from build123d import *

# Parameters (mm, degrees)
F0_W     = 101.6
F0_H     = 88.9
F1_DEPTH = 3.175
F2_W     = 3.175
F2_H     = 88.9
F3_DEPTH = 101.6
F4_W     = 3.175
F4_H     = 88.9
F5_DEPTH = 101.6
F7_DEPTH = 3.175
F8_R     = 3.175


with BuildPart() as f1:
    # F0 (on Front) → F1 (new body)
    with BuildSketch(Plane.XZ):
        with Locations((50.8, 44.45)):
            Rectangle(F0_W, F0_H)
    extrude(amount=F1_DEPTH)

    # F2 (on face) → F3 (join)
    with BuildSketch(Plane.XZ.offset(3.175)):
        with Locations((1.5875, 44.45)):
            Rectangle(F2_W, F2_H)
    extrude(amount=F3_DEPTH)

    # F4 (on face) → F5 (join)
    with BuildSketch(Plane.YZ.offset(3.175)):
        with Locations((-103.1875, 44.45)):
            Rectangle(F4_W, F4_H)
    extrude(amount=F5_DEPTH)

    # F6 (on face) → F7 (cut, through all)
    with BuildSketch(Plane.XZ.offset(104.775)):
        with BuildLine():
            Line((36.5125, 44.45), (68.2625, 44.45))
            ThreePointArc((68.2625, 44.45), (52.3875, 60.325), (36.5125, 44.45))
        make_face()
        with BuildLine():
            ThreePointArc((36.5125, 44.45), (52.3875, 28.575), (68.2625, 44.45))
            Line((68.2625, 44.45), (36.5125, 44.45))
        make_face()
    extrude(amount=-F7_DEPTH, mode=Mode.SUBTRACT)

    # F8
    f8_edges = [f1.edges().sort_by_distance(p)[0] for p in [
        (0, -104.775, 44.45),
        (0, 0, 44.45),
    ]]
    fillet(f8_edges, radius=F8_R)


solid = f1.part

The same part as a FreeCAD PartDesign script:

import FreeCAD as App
import Part
import Sketcher

V = App.Vector
Q = App.Units.Quantity


def edges_at(feature, points):
    """Names of the edges that pass closest to the given points."""
    edges = feature.Shape.Edges
    near = lambda p: min(range(len(edges)), key=lambda i: edges[i].distToShape(Part.Vertex(*p))[0])
    return sorted({f"Edge{near(p) + 1}" for p in points})

doc = App.newDocument("Part")
body = doc.addObject("PartDesign::Body", "Body")

# Sketch on XZ plane
sketch1 = body.newObject("Sketcher::SketchObject", "Sketch")
sketch1.AttachmentSupport = (doc.getObject("XZ_Plane"), [""])
sketch1.MapMode = "FlatFace"
sketch1.addGeometry(Part.LineSegment(V(0, 89, 0), V(0, 0, 0)), False)
sketch1.addGeometry(Part.LineSegment(V(0, 0, 0), V(102, 0, 0)), False)
sketch1.addGeometry(Part.LineSegment(V(102, 0, 0), V(102, 89, 0)), False)
sketch1.addGeometry(Part.LineSegment(V(102, 89, 0), V(0, 89, 0)), False)
sketch1.addConstraint(Sketcher.Constraint("Coincident", 0, 2, 1, 1))
sketch1.addConstraint(Sketcher.Constraint("Coincident", 1, 2, 2, 1))
sketch1.addConstraint(Sketcher.Constraint("Coincident", 2, 2, 3, 1))
sketch1.addConstraint(Sketcher.Constraint("Coincident", 3, 2, 0, 1))
sketch1.addConstraint(Sketcher.Constraint("Vertical", 0))
sketch1.addConstraint(Sketcher.Constraint("Horizontal", 1))
sketch1.addConstraint(Sketcher.Constraint("Vertical", 2))
sketch1.addConstraint(Sketcher.Constraint("Horizontal", 3))
sketch1.addConstraint(Sketcher.Constraint("Coincident", 0, 2, -1, 1))
sketch1.addConstraint(Sketcher.Constraint("DistanceX", 1, 1, 1, 2, Q("4 in")))
sketch1.addConstraint(Sketcher.Constraint("DistanceY", 0, 2, 0, 1, Q("3.5 in")))
pad1 = body.newObject("PartDesign::Pad", "Pad")
pad1.Profile = sketch1
pad1.Length = Q("0.125 in")

# Sketch on XZ plane
sketch2 = body.newObject("Sketcher::SketchObject", "Sketch001")
sketch2.AttachmentSupport = (doc.getObject("XZ_Plane"), [""])
sketch2.MapMode = "FlatFace"
sketch2.AttachmentOffset = App.Placement(V(0, 0, 0.125 * 25.4), App.Rotation())
sketch2.addGeometry(Part.LineSegment(V(0, 88.9, 0), V(0, 0, 0)), False)
sketch2.addGeometry(Part.LineSegment(V(0, 0, 0), V(3.2, 0, 0)), False)
sketch2.addGeometry(Part.LineSegment(V(3.2, 0, 0), V(3.2, 88.9, 0)), False)
sketch2.addGeometry(Part.LineSegment(V(3.2, 88.9, 0), V(0, 88.9, 0)), False)
sketch2.addConstraint(Sketcher.Constraint("Coincident", 0, 2, 1, 1))
sketch2.addConstraint(Sketcher.Constraint("Coincident", 1, 2, 2, 1))
sketch2.addConstraint(Sketcher.Constraint("Coincident", 2, 2, 3, 1))
sketch2.addConstraint(Sketcher.Constraint("Coincident", 3, 2, 0, 1))
sketch2.addConstraint(Sketcher.Constraint("Vertical", 0))
sketch2.addConstraint(Sketcher.Constraint("Horizontal", 1))
sketch2.addConstraint(Sketcher.Constraint("Vertical", 2))
sketch2.addConstraint(Sketcher.Constraint("Horizontal", 3))
sketch2.addConstraint(Sketcher.Constraint("Coincident", 0, 2, -1, 1))
sketch2.addConstraint(Sketcher.Constraint("DistanceY", 0, 2, 0, 1, Q("3.5 in")))
sketch2.addConstraint(Sketcher.Constraint("DistanceX", 1, 1, 1, 2, Q("0.125 in")))
pad2 = body.newObject("PartDesign::Pad", "Pad001")
pad2.Profile = sketch2
pad2.Length = Q("4 in")

# Sketch on YZ plane
sketch3 = body.newObject("Sketcher::SketchObject", "Sketch002")
sketch3.AttachmentSupport = (doc.getObject("YZ_Plane"), [""])
sketch3.MapMode = "FlatFace"
sketch3.AttachmentOffset = App.Placement(V(0, 0, 0.125 * 25.4), App.Rotation())
sketch3.addGeometry(Part.LineSegment(V(-104.8, 88.9, 0), V(-104.8, 0, 0)), False)
sketch3.addGeometry(Part.LineSegment(V(-104.8, 0, 0), V(-101.6, 0, 0)), False)
sketch3.addGeometry(Part.LineSegment(V(-101.6, 0, 0), V(-101.6, 88.9, 0)), False)
sketch3.addGeometry(Part.LineSegment(V(-101.6, 88.9, 0), V(-104.8, 88.9, 0)), False)
sketch3.addConstraint(Sketcher.Constraint("Coincident", 0, 2, 1, 1))
sketch3.addConstraint(Sketcher.Constraint("Coincident", 1, 2, 2, 1))
sketch3.addConstraint(Sketcher.Constraint("Coincident", 2, 2, 3, 1))
sketch3.addConstraint(Sketcher.Constraint("Coincident", 3, 2, 0, 1))
sketch3.addConstraint(Sketcher.Constraint("Vertical", 0))
sketch3.addConstraint(Sketcher.Constraint("Horizontal", 1))
sketch3.addConstraint(Sketcher.Constraint("Vertical", 2))
sketch3.addConstraint(Sketcher.Constraint("Horizontal", 3))
sketch3.addConstraint(Sketcher.Constraint("PointOnObject", 0, 2, -1))
sketch3.addConstraint(Sketcher.Constraint("DistanceY", 0, 2, 0, 1, Q("3.5 in")))
sketch3.addConstraint(Sketcher.Constraint("DistanceX", 1, 2, -1, 1, Q("4 in")))
sketch3.addConstraint(Sketcher.Constraint("DistanceX", 1, 1, 1, 2, Q("0.125 in")))
pad3 = body.newObject("PartDesign::Pad", "Pad002")
pad3.Profile = sketch3
pad3.Length = Q("4 in")

# Sketch on XZ plane
sketch4 = body.newObject("Sketcher::SketchObject", "Sketch003")
sketch4.AttachmentSupport = (doc.getObject("XZ_Plane"), [""])
sketch4.MapMode = "FlatFace"
sketch4.AttachmentOffset = App.Placement(V(0, 0, 4.125 * 25.4), App.Rotation())
sketch4.addGeometry(Part.Circle(V(52, 44, 0), V(0, 0, 1), 16), False)
sketch4.addConstraint(Sketcher.Constraint("Diameter", 0, Q("1.25 in")))
sketch4.addConstraint(Sketcher.Constraint("DistanceY", -1, 1, 0, 3, Q("1.75 in")))
sketch4.addConstraint(Sketcher.Constraint("DistanceX", -1, 1, 0, 3, Q("2.0625 in")))
pocket1 = body.newObject("PartDesign::Pocket", "Pocket")
pocket1.Profile = sketch4
pocket1.Length = Q("0.125 in")
doc.recompute()

fillet = body.newObject("PartDesign::Fillet", "Fillet")
fillet.Base = (pocket1, edges_at(pocket1, [(0, -104.775, 44.45), (0, 0, 44.45)]))
fillet.Radius = Q("0.125 in")

doc.recompute()
